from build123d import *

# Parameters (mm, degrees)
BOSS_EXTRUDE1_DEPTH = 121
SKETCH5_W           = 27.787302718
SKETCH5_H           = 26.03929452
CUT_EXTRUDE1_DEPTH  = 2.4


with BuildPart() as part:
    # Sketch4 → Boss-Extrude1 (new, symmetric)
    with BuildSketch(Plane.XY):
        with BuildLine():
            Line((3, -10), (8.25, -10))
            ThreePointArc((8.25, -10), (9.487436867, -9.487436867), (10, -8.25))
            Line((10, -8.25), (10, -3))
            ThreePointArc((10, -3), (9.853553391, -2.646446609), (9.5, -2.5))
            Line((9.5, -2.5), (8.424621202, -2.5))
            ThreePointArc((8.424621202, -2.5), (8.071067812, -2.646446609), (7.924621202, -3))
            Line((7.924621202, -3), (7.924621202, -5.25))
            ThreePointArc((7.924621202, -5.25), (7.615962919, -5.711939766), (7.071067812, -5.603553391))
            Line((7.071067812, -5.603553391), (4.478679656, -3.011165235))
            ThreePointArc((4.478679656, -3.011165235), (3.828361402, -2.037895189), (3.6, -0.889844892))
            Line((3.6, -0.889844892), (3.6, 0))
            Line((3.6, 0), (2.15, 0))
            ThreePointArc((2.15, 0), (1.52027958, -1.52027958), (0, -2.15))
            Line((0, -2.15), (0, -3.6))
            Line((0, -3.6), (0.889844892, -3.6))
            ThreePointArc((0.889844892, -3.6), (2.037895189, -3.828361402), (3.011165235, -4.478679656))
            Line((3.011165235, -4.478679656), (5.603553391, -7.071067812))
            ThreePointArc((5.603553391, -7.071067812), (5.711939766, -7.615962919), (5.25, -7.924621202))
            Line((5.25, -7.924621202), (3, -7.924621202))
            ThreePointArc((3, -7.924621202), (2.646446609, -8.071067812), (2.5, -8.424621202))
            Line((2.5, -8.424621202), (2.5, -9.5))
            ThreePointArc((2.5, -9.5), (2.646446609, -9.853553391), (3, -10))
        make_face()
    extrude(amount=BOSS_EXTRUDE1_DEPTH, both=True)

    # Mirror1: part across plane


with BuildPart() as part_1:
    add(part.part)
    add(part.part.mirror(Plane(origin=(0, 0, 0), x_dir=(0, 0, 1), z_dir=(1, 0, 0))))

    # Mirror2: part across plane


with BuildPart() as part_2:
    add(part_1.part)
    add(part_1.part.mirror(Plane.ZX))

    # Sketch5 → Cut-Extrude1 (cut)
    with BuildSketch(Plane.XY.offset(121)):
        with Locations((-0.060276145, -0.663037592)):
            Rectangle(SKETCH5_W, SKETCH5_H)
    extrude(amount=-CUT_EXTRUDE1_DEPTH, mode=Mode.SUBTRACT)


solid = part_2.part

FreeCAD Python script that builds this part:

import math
import FreeCAD as App
import Part
import Sketcher

V = App.Vector

doc = App.newDocument("Part")
params = doc.addObject("Spreadsheet::Sheet", "Params")
for row, (alias, value) in enumerate([
    ("sketch1_radius", "3 mm"),
    ("sketch1_radius2", "0.5 mm"),
    ("sketch1_radius3", "1.75 mm"),
    ("sketch1_radius4", "2.15 mm"),
    ("sketch1_width", "1.45 mm"),
    ("pad1_length", "242 mm"),
    ("pocket1_length", "2.4 mm"),
], start=1):
    params.set(f"A{row}", alias)
    params.set(f"B{row}", "=" + value)
    params.setAlias(f"B{row}", alias)

body = doc.addObject("PartDesign::Body", "Body")

# Sketch on XY plane
sketch1 = doc.addObject("Sketcher::SketchObject", "Sketch")
body.addObject(sketch1)
sketch1.AttachmentSupport = (doc.XY_Plane, [""])
sketch1.MapMode = "FlatFace"
sketch1.addGeometry([
    Part.LineSegment(V(3, -10, 0), V(8.25, -10, 0)),  # 0
    Part.ArcOfCircle(Part.Circle(V(8.25, -8.25, 0), V(0, 0, 1), 1.75), math.radians(-90), math.radians(0)),  # 1
    Part.LineSegment(V(10, -8.25, 0), V(10, -3, 0)),  # 2
    Part.ArcOfCircle(Part.Circle(V(9.5, -3, 0), V(0, 0, 1), 0.5), math.radians(0), math.radians(90)),  # 3
    Part.LineSegment(V(9.5, -2.5, 0), V(8.42, -2.5, 0)),  # 4
    Part.ArcOfCircle(Part.Circle(V(8.42, -3, 0), V(0, 0, 1), 0.5), math.radians(90), math.radians(180)),  # 5
    Part.LineSegment(V(7.92, -3, 0), V(7.92, -5.25, 0)),  # 6
    Part.ArcOfCircle(Part.Circle(V(7.42, -5.25, 0), V(0, 0, 1), 0.5), math.radians(-135), math.radians(0)),  # 7
    Part.LineSegment(V(7.07, -5.6, 0), V(4.48, -3.01, 0)),  # 8
    Part.ArcOfCircle(Part.Circle(V(6.6, -0.89, 0), V(0, 0, 1), 3), math.radians(180), math.radians(225)),  # 9
    Part.LineSegment(V(3.6, -0.89, 0), V(3.6, 0, 0)),  # 10
    Part.LineSegment(V(3.6, 0, 0), V(2.15, 0, 0)),  # 11
    Part.ArcOfCircle(Part.Circle(V(0, 0, 0), V(0, 0, 1), 2.15), math.radians(-90), math.radians(0)),  # 12
    Part.LineSegment(V(0, -2.15, 0), V(0, -3.6, 0)),  # 13
    Part.LineSegment(V(0, -3.6, 0), V(0.89, -3.6, 0)),  # 14
    Part.ArcOfCircle(Part.Circle(V(0.89, -6.6, 0), V(0, 0, 1), 3), math.radians(45), math.radians(90)),  # 15
    Part.LineSegment(V(3.01, -4.48, 0), V(5.6, -7.07, 0)),  # 16
    Part.ArcOfCircle(Part.Circle(V(5.25, -7.42, 0), V(0, 0, 1), 0.5), math.radians(-90), math.radians(45)),  # 17
    Part.LineSegment(V(5.25, -7.92, 0), V(3, -7.92, 0)),  # 18
    Part.ArcOfCircle(Part.Circle(V(3, -8.42, 0), V(0, 0, 1), 0.5), math.radians(90), math.radians(180)),  # 19
    Part.LineSegment(V(2.5, -8.42, 0), V(2.5, -9.5, 0)),  # 20
    Part.ArcOfCircle(Part.Circle(V(3, -9.5, 0), V(0, 0, 1), 0.5), math.radians(180), math.radians(270)),  # 21
], False)
sketch1.addConstraint([
    Sketcher.Constraint("Tangent", 0, 2, 1, 1),
    Sketcher.Constraint("Tangent", 1, 2, 2, 1),
    Sketcher.Constraint("Tangent", 2, 2, 3, 1),
    Sketcher.Constraint("Tangent", 3, 2, 4, 1),
    Sketcher.Constraint("Tangent", 4, 2, 5, 1),
    Sketcher.Constraint("Tangent", 5, 2, 6, 1),
    Sketcher.Constraint("Tangent", 6, 2, 7, 2),
    Sketcher.Constraint("Tangent", 7, 1, 8, 1),
    Sketcher.Constraint("Tangent", 8, 2, 9, 2),
    Sketcher.Constraint("Tangent", 9, 1, 10, 1),
    Sketcher.Constraint("Coincident", 10, 2, 11, 1),
    Sketcher.Constraint("Coincident", 11, 2, 12, 2),
    Sketcher.Constraint("Coincident", 12, 1, 13, 1),
    Sketcher.Constraint("Coincident", 13, 2, 14, 1),
    Sketcher.Constraint("Tangent", 14, 2, 15, 2),
    Sketcher.Constraint("Tangent", 15, 1, 16, 1),
    Sketcher.Constraint("Tangent", 16, 2, 17, 2),
    Sketcher.Constraint("Tangent", 17, 1, 18, 1),
    Sketcher.Constraint("Tangent", 18, 2, 19, 1),
    Sketcher.Constraint("Tangent", 19, 2, 20, 1),
    Sketcher.Constraint("Tangent", 20, 2, 21, 1),
    Sketcher.Constraint("Tangent", 21, 2, 0, 1),
    Sketcher.Constraint("Horizontal", 0),
    Sketcher.Constraint("Vertical", 2),
    Sketcher.Constraint("Horizontal", 4),
    Sketcher.Constraint("Vertical", 6),
    Sketcher.Constraint("Vertical", 10),
    Sketcher.Constraint("Horizontal", 11),
    Sketcher.Constraint("Vertical", 13),
    Sketcher.Constraint("Horizontal", 14),
    Sketcher.Constraint("Horizontal", 18),
    Sketcher.Constraint("Vertical", 20),
    Sketcher.Constraint("Coincident", 12, 3, -1, 1),
    Sketcher.Constraint("Equal", 3, 5),
    Sketcher.Constraint("Equal", 5, 7),
    Sketcher.Constraint("Equal", 9, 15),
    Sketcher.Constraint("Equal", 7, 17),
    Sketcher.Constraint("Equal", 17, 19),
    Sketcher.Constraint("Equal", 19, 21),
    Sketcher.Constraint("PointOnObject", 10, 2, -1),
    Sketcher.Constraint("PointOnObject", 12, 1, -2),
    Sketcher.Constraint("Parallel", 8, 16),
    Sketcher.Constraint("Equal", 0, 2),
    Sketcher.Constraint("Equal", 18, 6),
    Sketcher.Constraint("Equal", 14, 10),
    Sketcher.Constraint("Equal", 11, 13),
    Sketcher.Constraint("Equal", 4, 20),
    Sketcher.Constraint("Equal", 8, 16),
    Sketcher.Constraint("Radius", 9, 3.0),
    Sketcher.Constraint("Radius", 3, 0.5),
    Sketcher.Constraint("Radius", 1, 1.75),
    Sketcher.Constraint("Radius", 12, 2.15),
    Sketcher.Constraint("DistanceY", 3, 3, -1, 1, 3.0),
    Sketcher.Constraint("DistanceY", 0, 2, -1, 1, 10.0),
    Sketcher.Constraint("DistanceY", 1, 3, 7, 3, 3.0),
    Sketcher.Constraint("DistanceX", 11, 2, 11, 1, 1.45),
    Sketcher.Constraint("DistanceX", 4, 2, 4, 1, 1.075379),
])
sketch1.setExpression("Constraints[48]", "Params.sketch1_radius")
sketch1.setExpression("Constraints[49]", "Params.sketch1_radius2")
sketch1.setExpression("Constraints[50]", "Params.sketch1_radius3")
sketch1.setExpression("Constraints[51]", "Params.sketch1_radius4")
sketch1.setExpression("Constraints[55]", "Params.sketch1_width")
pad1 = doc.addObject("PartDesign::Pad", "Pad")
body.addObject(pad1)
pad1.Profile = sketch1
pad1.setExpression("Length", "Params.pad1_length")
pad1.Midplane = True
body2 = doc.addObject("PartDesign::Body", "Body001")
doc.recompute()

body2.BaseFeature = body
doc.recompute()

mirroring = doc.addObject("Part::Mirroring", "Mirroring")
mirroring.Source = body
mirroring.Base = V(0, 0, 0)
mirroring.Normal = V(1, 0, 0)
body3 = doc.addObject("PartDesign::Body", "Body002")
body3.BaseFeature = mirroring
boolean = doc.addObject("PartDesign::Boolean", "Boolean")
body2.addObject(boolean)
boolean.Type = "Fuse"
boolean.addObjects([body3])
doc.recompute()
body4 = doc.addObject("PartDesign::Body", "Body003")
doc.recompute()

body4.BaseFeature = body2
doc.recompute()

mirroring2 = doc.addObject("Part::Mirroring", "Mirroring001")
mirroring2.Source = body2
mirroring2.Base = V(0, 0, 0)
mirroring2.Normal = V(0, 1, 0)
body5 = doc.addObject("PartDesign::Body", "Body004")
body5.BaseFeature = mirroring2
boolean2 = doc.addObject("PartDesign::Boolean", "Boolean001")
body4.addObject(boolean2)
boolean2.Type = "Fuse"
boolean2.addObjects([body5])
doc.recompute()

# Sketch on XY plane
sketch2 = doc.addObject("Sketcher::SketchObject", "Sketch001")
body4.addObject(sketch2)
sketch2.AttachmentSupport = (doc.getObject("XY_Plane003"), [""])
sketch2.MapMode = "FlatFace"
sketch2.AttachmentOffset = App.Placement(V(0, 0, 121), App.Rotation())
sketch2.addGeometry([
    Part.LineSegment(V(-14, 12, 0), V(-14, -14, 0)),
    Part.LineSegment(V(-14, -14, 0), V(14, -14, 0)),
    Part.LineSegment(V(14, -14, 0), V(14, 12, 0)),
    Part.LineSegment(V(14, 12, 0), V(-14, 12, 0)),
], False)
sketch2.addConstraint([
    Sketcher.Constraint("Coincident", 0, 2, 1, 1),
    Sketcher.Constraint("Coincident", 1, 2, 2, 1),
    Sketcher.Constraint("Coincident", 2, 2, 3, 1),
    Sketcher.Constraint("Coincident", 3, 2, 0, 1),
    Sketcher.Constraint("Vertical", 0),
    Sketcher.Constraint("Horizontal", 1),
    Sketcher.Constraint("Vertical", 2),
    Sketcher.Constraint("Horizontal", 3),
    Sketcher.Constraint("DistanceX", 1, 1, 1, 2, 27.787303),
    Sketcher.Constraint("DistanceY", 0, 2, 0, 1, 26.039295),
    Sketcher.Constraint("DistanceY", -1, 1, 2, 2, 12.35661),
    Sketcher.Constraint("DistanceX", 0, 2, -1, 1, 13.953928),
])
pocket1 = doc.addObject("PartDesign::Pocket", "Pocket")
body4.addObject(pocket1)
pocket1.Profile = sketch2
pocket1.setExpression("Length", "Params.pocket1_length")
mirroring.Visibility = False
mirroring2.Visibility = False

doc.recompute()
